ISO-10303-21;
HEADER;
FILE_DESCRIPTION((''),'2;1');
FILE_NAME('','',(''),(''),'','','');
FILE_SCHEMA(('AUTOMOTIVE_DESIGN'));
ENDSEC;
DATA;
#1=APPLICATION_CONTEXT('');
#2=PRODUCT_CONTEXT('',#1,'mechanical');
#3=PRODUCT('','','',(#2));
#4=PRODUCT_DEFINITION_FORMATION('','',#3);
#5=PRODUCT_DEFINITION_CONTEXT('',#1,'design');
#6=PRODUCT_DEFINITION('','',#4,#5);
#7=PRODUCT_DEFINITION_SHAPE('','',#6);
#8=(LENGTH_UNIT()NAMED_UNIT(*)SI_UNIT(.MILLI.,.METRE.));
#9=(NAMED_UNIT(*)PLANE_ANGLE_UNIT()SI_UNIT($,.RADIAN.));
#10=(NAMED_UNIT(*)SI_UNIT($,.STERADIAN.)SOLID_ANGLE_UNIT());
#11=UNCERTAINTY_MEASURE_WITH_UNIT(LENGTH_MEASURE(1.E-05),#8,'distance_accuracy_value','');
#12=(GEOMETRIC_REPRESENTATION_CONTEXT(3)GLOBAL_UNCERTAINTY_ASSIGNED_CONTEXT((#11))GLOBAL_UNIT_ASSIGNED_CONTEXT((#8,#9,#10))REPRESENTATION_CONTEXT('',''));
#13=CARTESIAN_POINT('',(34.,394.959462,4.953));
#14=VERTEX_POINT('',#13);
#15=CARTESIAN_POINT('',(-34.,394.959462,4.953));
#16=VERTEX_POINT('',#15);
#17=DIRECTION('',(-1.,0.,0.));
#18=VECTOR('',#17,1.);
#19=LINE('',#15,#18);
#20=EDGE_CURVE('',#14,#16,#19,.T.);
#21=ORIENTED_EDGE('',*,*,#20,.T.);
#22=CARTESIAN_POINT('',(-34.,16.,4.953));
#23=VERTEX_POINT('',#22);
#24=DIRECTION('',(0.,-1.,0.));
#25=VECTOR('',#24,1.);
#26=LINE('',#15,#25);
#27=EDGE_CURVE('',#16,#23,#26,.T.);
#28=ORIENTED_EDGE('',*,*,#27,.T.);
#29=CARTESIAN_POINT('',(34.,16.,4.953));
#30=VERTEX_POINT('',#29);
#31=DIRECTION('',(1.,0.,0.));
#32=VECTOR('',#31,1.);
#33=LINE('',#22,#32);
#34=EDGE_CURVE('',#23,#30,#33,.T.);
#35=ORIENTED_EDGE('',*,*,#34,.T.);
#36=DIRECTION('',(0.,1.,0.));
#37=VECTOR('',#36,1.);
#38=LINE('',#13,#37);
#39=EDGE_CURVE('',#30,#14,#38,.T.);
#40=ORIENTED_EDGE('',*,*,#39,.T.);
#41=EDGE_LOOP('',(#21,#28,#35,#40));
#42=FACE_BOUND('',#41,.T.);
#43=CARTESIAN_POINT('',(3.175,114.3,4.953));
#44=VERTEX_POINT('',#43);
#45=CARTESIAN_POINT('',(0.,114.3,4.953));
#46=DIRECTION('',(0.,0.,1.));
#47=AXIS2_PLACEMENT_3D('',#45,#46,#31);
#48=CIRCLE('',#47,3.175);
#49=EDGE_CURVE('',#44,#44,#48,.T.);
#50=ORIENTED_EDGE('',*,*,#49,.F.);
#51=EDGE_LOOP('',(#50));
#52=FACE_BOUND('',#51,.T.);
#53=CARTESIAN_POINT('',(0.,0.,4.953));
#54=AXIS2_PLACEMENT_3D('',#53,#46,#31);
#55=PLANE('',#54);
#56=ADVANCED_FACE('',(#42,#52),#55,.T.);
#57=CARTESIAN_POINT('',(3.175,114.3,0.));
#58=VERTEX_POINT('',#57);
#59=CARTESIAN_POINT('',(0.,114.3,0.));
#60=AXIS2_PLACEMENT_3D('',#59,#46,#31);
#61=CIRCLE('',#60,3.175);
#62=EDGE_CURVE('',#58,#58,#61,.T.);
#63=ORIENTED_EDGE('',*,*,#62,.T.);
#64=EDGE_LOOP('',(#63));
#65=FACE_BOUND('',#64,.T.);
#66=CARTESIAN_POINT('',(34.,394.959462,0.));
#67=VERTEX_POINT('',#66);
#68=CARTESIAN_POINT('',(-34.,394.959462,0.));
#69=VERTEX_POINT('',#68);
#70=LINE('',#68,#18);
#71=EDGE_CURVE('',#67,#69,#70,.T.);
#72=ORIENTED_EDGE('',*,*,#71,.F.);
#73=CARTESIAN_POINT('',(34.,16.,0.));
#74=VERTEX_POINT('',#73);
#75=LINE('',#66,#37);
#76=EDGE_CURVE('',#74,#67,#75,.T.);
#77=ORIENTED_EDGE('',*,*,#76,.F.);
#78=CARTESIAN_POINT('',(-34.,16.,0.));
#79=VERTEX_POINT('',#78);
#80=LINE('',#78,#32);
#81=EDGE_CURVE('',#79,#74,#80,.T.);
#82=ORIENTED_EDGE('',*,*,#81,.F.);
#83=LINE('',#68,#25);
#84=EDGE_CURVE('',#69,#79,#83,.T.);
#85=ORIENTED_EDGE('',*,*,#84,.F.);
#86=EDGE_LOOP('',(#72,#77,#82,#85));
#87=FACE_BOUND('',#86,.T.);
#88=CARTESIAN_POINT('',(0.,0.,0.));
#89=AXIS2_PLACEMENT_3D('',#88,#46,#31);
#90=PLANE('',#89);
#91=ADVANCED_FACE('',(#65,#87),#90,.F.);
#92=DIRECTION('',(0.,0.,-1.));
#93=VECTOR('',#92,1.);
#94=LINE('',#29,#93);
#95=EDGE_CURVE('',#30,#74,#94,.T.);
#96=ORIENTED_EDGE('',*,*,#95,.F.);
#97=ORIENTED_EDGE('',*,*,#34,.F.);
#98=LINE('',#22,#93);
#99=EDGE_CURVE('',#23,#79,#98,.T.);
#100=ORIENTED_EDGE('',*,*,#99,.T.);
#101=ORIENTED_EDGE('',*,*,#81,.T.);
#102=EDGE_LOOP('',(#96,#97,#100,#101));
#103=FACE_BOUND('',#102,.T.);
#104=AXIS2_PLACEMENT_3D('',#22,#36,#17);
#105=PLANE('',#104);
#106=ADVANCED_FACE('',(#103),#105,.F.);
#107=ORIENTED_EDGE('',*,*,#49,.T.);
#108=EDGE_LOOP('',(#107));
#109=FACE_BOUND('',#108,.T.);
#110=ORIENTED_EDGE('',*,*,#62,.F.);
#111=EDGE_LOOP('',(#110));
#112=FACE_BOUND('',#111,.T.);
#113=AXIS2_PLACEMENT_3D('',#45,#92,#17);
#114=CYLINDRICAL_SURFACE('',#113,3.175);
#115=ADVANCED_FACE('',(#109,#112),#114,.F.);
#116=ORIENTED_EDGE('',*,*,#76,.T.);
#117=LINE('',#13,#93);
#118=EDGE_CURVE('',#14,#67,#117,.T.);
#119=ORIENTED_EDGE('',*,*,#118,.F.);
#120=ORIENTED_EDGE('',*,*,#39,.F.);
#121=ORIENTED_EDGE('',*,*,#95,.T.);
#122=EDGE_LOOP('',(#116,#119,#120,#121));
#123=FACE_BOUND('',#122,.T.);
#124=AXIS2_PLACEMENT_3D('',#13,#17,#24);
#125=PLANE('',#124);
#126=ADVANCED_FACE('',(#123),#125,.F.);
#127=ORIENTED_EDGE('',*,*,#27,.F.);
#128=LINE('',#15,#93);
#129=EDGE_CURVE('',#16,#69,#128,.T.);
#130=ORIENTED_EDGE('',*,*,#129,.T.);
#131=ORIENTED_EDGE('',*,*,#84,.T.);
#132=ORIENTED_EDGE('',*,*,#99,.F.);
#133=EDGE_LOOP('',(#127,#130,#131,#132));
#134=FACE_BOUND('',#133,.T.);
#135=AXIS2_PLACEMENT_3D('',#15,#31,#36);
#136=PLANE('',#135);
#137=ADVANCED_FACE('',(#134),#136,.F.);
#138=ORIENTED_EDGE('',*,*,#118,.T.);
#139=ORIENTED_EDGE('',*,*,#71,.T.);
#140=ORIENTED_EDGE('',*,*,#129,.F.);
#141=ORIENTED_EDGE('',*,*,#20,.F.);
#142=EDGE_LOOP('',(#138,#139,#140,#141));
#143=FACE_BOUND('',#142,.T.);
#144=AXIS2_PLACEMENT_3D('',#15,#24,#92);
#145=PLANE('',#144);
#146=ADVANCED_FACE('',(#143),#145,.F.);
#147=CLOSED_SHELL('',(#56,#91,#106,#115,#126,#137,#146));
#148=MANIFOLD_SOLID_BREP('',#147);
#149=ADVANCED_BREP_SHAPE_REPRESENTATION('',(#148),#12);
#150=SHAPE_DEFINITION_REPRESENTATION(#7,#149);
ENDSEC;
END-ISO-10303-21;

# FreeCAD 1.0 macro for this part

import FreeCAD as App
import Part
import Sketcher
Q = App.Units.Quantity

doc = App.newDocument("Part")
body = doc.addObject("PartDesign::Body", "Body")

# Sketch on XY plane
sketch1 = body.newObject("Sketcher::SketchObject", "Sketch")
sketch1.AttachmentSupport = (doc.getObject("XY_Plane"), [""])
sketch1.MapMode = "FlatFace"
sketch1.addGeometry([
    Part.LineSegment(App.Vector(-34, 394.959462, 0), App.Vector(-34, 16, 0)),  # 0
    Part.LineSegment(App.Vector(-34, 16, 0), App.Vector(34, 16, 0)),  # 1
    Part.LineSegment(App.Vector(34, 16, 0), App.Vector(34, 394.959462, 0)),  # 2
    Part.LineSegment(App.Vector(34, 394.959462, 0), App.Vector(-34, 394.959462, 0)),  # 3
    Part.Circle(App.Vector(0, 114.3, 0), App.Vector(0, 0, 1), 3.175),  # 4
], False)
sketch1.addConstraint([
    Sketcher.Constraint("Coincident", 0, 2, 1, 1),
    Sketcher.Constraint("Coincident", 1, 2, 2, 1),
    Sketcher.Constraint("Coincident", 2, 2, 3, 1),
    Sketcher.Constraint("Coincident", 3, 2, 0, 1),
    Sketcher.Constraint("Vertical", 0),
    Sketcher.Constraint("Horizontal", 1),
    Sketcher.Constraint("Vertical", 2),
    Sketcher.Constraint("Horizontal", 3),
    Sketcher.Constraint("PointOnObject", 4, 3, -2),
    Sketcher.Constraint("Diameter", 4, Q("0.25 in")),
    Sketcher.Constraint("DistanceY", -1, 1, 4, 3, Q("4.5 in")),
    Sketcher.Constraint("DistanceX", 1, 1, 1, 2, 68.0),
    Sketcher.Constraint("DistanceY", 0, 2, 0, 1, 378.959462),
    Sketcher.Constraint("DistanceX", 0, 2, -1, 1, 34.0),
    Sketcher.Constraint("DistanceY", -1, 1, 0, 2, 16.0),
])
pad1 = body.newObject("PartDesign::Pad", "Pad")
pad1.Profile = sketch1
pad1.Length = Q("0.195 in")

doc.recompute()
